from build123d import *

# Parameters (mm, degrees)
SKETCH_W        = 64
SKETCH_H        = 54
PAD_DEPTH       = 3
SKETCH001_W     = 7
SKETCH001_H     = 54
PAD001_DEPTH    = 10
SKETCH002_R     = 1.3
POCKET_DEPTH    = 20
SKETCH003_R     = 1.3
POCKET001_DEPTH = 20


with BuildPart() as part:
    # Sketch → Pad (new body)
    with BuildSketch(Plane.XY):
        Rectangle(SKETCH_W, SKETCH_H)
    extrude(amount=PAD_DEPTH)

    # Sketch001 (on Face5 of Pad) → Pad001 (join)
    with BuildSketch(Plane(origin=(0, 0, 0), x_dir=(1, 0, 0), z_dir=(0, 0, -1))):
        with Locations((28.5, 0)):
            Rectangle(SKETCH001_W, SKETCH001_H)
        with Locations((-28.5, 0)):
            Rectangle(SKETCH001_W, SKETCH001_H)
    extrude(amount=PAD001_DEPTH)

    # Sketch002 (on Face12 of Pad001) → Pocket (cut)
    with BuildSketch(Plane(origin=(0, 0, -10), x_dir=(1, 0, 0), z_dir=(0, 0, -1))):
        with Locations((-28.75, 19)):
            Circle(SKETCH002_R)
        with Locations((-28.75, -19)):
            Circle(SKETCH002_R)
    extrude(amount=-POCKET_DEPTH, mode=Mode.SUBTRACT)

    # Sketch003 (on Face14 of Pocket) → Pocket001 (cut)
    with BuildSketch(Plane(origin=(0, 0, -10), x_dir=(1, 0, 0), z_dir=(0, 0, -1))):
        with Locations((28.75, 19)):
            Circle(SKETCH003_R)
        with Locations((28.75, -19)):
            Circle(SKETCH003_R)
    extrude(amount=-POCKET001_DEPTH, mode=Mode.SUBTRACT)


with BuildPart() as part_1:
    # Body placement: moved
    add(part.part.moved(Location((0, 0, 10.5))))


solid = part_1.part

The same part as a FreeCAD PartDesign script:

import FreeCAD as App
import Part
import Sketcher

V = App.Vector
Q = App.Units.Quantity


def add_polygon(sketch, points):
    """Adds a closed chain of lines whose ends are joined by coincident constraints."""
    first, n = sketch.GeometryCount, len(points)
    for a, b in zip(points, points[1:] + points[:1]):
        sketch.addGeometry(Part.LineSegment(App.Vector(*a, 0), App.Vector(*b, 0)), False)
    for i in range(n):
        sketch.addConstraint(Sketcher.Constraint("Coincident", first + i, 2, first + (i + 1) % n, 1))

doc = App.newDocument("Part")
body = doc.addObject("PartDesign::Body", "Body")

# Sketch on XY plane
sketch1 = body.newObject("Sketcher::SketchObject", "Sketch")
sketch1.AttachmentSupport = (doc.getObject("XY_Plane"), [""])
sketch1.MapMode = "FlatFace"
add_polygon(sketch1, [(-32, 27), (-32, -27), (32, -27), (32, 27)])  # lines 0-3
sketch1.addConstraint([
    Sketcher.Constraint("Vertical", 0),
    Sketcher.Constraint("Horizontal", 1),
    Sketcher.Constraint("Vertical", 2),
    Sketcher.Constraint("Horizontal", 3),
    Sketcher.Constraint("Symmetric", 0, 2, 2, 2, -1, 1),
    Sketcher.Constraint("DistanceX", 1, 1, 1, 2, Q("64 mm")),
    Sketcher.Constraint("DistanceY", 0, 2, 0, 1, Q("54 mm")),
])
pad1 = body.newObject("PartDesign::Pad", "Pad")
pad1.Profile = sketch1
pad1.Length = 3

# Sketch on XY plane
sketch2 = body.newObject("Sketcher::SketchObject", "Sketch001")
sketch2.AttachmentSupport = (doc.getObject("XY_Plane"), [""])
sketch2.MapMode = "FlatFace"
add_polygon(sketch2, [(25, -27), (25, 27), (32, 27), (32, -27)])  # lines 0-3
add_polygon(sketch2, [(-32, -27), (-32, 27), (-25, 27), (-25, -27)])  # lines 4-7
sketch2.addConstraint([
    Sketcher.Constraint("Vertical", 0),
    Sketcher.Constraint("Horizontal", 1),
    Sketcher.Constraint("Vertical", 2),
    Sketcher.Constraint("Horizontal", 3),
    Sketcher.Constraint("Vertical", 4),
    Sketcher.Constraint("Horizontal", 5),
    Sketcher.Constraint("Vertical", 6),
    Sketcher.Constraint("Horizontal", 7),
    Sketcher.Constraint("Symmetric", 2, 2, 4, 2, -1, 1),
    Sketcher.Constraint("Symmetric", 0, 2, 6, 2, -1, 1),
    Sketcher.Constraint("Horizontal", 1, 2, 4, 2),
    Sketcher.Constraint("DistanceX", 1, 1, 1, 2, Q("7 mm")),
    Sketcher.Constraint("DistanceY", 0, 1, 0, 2, Q("54 mm")),
    Sketcher.Constraint("DistanceX", -1, 1, 0, 2, Q("25 mm")),
])
pad2 = body.newObject("PartDesign::Pad", "Pad001")
pad2.Profile = sketch2
pad2.Length = 10
pad2.Reversed = True

# Sketch on XY plane
sketch3 = body.newObject("Sketcher::SketchObject", "Sketch002")
sketch3.AttachmentSupport = (doc.getObject("XY_Plane"), [""])
sketch3.MapMode = "FlatFace"
sketch3.AttachmentOffset = App.Placement(V(0, 0, -10), App.Rotation())
sketch3.addGeometry([
    Part.Circle(V(-28.75, -19, 0), V(0, 0, 1), 1.3),
    Part.Circle(V(-28.75, 19, 0), V(0, 0, 1), 1.3),
], False)
sketch3.addConstraint([
    Sketcher.Constraint("Equal", 0, 1),
    Sketcher.Constraint("Symmetric", 0, 3, 1, 3, -1),
    Sketcher.Constraint("Diameter", 0, Q("2.6 mm")),
    Sketcher.Constraint("DistanceY", 0, 3, -1, 1, Q("19 mm")),
    Sketcher.Constraint("DistanceX", 0, 3, -1, 1, Q("28.75 mm")),
])
pocket1 = body.newObject("PartDesign::Pocket", "Pocket")
pocket1.Profile = sketch3
pocket1.Length = 20
pocket1.Reversed = True

# Sketch on XY plane
sketch4 = body.newObject("Sketcher::SketchObject", "Sketch003")
sketch4.AttachmentSupport = (doc.getObject("XY_Plane"), [""])
sketch4.MapMode = "FlatFace"
sketch4.AttachmentOffset = App.Placement(V(0, 0, -10), App.Rotation())
sketch4.addGeometry([
    Part.Circle(V(28.75, -19, 0), V(0, 0, 1), 1.3),
    Part.Circle(V(28.75, 19, 0), V(0, 0, 1), 1.3),
], False)
sketch4.addConstraint([
    Sketcher.Constraint("Equal", 0, 1),
    Sketcher.Constraint("Symmetric", 0, 3, 1, 3, -1),
    Sketcher.Constraint("Diameter", 0, Q("2.6 mm")),
    Sketcher.Constraint("DistanceY", 0, 3, -1, 1, Q("19 mm")),
    Sketcher.Constraint("DistanceX", -1, 1, 0, 3, Q("28.75 mm")),
])
pocket2 = body.newObject("PartDesign::Pocket", "Pocket001")
pocket2.Profile = sketch4
pocket2.Length = 20
pocket2.Reversed = True
body2 = doc.addObject("PartDesign::Body", "Body001")
doc.recompute()

body.Placement = App.Placement(V(0, 0, 10.5), App.Rotation(V(0, 0, 1), 0))
boolean = body2.newObject("PartDesign::Boolean", "Boolean")
boolean.Type = "Fuse"
boolean.addObjects([body])

doc.recompute()
